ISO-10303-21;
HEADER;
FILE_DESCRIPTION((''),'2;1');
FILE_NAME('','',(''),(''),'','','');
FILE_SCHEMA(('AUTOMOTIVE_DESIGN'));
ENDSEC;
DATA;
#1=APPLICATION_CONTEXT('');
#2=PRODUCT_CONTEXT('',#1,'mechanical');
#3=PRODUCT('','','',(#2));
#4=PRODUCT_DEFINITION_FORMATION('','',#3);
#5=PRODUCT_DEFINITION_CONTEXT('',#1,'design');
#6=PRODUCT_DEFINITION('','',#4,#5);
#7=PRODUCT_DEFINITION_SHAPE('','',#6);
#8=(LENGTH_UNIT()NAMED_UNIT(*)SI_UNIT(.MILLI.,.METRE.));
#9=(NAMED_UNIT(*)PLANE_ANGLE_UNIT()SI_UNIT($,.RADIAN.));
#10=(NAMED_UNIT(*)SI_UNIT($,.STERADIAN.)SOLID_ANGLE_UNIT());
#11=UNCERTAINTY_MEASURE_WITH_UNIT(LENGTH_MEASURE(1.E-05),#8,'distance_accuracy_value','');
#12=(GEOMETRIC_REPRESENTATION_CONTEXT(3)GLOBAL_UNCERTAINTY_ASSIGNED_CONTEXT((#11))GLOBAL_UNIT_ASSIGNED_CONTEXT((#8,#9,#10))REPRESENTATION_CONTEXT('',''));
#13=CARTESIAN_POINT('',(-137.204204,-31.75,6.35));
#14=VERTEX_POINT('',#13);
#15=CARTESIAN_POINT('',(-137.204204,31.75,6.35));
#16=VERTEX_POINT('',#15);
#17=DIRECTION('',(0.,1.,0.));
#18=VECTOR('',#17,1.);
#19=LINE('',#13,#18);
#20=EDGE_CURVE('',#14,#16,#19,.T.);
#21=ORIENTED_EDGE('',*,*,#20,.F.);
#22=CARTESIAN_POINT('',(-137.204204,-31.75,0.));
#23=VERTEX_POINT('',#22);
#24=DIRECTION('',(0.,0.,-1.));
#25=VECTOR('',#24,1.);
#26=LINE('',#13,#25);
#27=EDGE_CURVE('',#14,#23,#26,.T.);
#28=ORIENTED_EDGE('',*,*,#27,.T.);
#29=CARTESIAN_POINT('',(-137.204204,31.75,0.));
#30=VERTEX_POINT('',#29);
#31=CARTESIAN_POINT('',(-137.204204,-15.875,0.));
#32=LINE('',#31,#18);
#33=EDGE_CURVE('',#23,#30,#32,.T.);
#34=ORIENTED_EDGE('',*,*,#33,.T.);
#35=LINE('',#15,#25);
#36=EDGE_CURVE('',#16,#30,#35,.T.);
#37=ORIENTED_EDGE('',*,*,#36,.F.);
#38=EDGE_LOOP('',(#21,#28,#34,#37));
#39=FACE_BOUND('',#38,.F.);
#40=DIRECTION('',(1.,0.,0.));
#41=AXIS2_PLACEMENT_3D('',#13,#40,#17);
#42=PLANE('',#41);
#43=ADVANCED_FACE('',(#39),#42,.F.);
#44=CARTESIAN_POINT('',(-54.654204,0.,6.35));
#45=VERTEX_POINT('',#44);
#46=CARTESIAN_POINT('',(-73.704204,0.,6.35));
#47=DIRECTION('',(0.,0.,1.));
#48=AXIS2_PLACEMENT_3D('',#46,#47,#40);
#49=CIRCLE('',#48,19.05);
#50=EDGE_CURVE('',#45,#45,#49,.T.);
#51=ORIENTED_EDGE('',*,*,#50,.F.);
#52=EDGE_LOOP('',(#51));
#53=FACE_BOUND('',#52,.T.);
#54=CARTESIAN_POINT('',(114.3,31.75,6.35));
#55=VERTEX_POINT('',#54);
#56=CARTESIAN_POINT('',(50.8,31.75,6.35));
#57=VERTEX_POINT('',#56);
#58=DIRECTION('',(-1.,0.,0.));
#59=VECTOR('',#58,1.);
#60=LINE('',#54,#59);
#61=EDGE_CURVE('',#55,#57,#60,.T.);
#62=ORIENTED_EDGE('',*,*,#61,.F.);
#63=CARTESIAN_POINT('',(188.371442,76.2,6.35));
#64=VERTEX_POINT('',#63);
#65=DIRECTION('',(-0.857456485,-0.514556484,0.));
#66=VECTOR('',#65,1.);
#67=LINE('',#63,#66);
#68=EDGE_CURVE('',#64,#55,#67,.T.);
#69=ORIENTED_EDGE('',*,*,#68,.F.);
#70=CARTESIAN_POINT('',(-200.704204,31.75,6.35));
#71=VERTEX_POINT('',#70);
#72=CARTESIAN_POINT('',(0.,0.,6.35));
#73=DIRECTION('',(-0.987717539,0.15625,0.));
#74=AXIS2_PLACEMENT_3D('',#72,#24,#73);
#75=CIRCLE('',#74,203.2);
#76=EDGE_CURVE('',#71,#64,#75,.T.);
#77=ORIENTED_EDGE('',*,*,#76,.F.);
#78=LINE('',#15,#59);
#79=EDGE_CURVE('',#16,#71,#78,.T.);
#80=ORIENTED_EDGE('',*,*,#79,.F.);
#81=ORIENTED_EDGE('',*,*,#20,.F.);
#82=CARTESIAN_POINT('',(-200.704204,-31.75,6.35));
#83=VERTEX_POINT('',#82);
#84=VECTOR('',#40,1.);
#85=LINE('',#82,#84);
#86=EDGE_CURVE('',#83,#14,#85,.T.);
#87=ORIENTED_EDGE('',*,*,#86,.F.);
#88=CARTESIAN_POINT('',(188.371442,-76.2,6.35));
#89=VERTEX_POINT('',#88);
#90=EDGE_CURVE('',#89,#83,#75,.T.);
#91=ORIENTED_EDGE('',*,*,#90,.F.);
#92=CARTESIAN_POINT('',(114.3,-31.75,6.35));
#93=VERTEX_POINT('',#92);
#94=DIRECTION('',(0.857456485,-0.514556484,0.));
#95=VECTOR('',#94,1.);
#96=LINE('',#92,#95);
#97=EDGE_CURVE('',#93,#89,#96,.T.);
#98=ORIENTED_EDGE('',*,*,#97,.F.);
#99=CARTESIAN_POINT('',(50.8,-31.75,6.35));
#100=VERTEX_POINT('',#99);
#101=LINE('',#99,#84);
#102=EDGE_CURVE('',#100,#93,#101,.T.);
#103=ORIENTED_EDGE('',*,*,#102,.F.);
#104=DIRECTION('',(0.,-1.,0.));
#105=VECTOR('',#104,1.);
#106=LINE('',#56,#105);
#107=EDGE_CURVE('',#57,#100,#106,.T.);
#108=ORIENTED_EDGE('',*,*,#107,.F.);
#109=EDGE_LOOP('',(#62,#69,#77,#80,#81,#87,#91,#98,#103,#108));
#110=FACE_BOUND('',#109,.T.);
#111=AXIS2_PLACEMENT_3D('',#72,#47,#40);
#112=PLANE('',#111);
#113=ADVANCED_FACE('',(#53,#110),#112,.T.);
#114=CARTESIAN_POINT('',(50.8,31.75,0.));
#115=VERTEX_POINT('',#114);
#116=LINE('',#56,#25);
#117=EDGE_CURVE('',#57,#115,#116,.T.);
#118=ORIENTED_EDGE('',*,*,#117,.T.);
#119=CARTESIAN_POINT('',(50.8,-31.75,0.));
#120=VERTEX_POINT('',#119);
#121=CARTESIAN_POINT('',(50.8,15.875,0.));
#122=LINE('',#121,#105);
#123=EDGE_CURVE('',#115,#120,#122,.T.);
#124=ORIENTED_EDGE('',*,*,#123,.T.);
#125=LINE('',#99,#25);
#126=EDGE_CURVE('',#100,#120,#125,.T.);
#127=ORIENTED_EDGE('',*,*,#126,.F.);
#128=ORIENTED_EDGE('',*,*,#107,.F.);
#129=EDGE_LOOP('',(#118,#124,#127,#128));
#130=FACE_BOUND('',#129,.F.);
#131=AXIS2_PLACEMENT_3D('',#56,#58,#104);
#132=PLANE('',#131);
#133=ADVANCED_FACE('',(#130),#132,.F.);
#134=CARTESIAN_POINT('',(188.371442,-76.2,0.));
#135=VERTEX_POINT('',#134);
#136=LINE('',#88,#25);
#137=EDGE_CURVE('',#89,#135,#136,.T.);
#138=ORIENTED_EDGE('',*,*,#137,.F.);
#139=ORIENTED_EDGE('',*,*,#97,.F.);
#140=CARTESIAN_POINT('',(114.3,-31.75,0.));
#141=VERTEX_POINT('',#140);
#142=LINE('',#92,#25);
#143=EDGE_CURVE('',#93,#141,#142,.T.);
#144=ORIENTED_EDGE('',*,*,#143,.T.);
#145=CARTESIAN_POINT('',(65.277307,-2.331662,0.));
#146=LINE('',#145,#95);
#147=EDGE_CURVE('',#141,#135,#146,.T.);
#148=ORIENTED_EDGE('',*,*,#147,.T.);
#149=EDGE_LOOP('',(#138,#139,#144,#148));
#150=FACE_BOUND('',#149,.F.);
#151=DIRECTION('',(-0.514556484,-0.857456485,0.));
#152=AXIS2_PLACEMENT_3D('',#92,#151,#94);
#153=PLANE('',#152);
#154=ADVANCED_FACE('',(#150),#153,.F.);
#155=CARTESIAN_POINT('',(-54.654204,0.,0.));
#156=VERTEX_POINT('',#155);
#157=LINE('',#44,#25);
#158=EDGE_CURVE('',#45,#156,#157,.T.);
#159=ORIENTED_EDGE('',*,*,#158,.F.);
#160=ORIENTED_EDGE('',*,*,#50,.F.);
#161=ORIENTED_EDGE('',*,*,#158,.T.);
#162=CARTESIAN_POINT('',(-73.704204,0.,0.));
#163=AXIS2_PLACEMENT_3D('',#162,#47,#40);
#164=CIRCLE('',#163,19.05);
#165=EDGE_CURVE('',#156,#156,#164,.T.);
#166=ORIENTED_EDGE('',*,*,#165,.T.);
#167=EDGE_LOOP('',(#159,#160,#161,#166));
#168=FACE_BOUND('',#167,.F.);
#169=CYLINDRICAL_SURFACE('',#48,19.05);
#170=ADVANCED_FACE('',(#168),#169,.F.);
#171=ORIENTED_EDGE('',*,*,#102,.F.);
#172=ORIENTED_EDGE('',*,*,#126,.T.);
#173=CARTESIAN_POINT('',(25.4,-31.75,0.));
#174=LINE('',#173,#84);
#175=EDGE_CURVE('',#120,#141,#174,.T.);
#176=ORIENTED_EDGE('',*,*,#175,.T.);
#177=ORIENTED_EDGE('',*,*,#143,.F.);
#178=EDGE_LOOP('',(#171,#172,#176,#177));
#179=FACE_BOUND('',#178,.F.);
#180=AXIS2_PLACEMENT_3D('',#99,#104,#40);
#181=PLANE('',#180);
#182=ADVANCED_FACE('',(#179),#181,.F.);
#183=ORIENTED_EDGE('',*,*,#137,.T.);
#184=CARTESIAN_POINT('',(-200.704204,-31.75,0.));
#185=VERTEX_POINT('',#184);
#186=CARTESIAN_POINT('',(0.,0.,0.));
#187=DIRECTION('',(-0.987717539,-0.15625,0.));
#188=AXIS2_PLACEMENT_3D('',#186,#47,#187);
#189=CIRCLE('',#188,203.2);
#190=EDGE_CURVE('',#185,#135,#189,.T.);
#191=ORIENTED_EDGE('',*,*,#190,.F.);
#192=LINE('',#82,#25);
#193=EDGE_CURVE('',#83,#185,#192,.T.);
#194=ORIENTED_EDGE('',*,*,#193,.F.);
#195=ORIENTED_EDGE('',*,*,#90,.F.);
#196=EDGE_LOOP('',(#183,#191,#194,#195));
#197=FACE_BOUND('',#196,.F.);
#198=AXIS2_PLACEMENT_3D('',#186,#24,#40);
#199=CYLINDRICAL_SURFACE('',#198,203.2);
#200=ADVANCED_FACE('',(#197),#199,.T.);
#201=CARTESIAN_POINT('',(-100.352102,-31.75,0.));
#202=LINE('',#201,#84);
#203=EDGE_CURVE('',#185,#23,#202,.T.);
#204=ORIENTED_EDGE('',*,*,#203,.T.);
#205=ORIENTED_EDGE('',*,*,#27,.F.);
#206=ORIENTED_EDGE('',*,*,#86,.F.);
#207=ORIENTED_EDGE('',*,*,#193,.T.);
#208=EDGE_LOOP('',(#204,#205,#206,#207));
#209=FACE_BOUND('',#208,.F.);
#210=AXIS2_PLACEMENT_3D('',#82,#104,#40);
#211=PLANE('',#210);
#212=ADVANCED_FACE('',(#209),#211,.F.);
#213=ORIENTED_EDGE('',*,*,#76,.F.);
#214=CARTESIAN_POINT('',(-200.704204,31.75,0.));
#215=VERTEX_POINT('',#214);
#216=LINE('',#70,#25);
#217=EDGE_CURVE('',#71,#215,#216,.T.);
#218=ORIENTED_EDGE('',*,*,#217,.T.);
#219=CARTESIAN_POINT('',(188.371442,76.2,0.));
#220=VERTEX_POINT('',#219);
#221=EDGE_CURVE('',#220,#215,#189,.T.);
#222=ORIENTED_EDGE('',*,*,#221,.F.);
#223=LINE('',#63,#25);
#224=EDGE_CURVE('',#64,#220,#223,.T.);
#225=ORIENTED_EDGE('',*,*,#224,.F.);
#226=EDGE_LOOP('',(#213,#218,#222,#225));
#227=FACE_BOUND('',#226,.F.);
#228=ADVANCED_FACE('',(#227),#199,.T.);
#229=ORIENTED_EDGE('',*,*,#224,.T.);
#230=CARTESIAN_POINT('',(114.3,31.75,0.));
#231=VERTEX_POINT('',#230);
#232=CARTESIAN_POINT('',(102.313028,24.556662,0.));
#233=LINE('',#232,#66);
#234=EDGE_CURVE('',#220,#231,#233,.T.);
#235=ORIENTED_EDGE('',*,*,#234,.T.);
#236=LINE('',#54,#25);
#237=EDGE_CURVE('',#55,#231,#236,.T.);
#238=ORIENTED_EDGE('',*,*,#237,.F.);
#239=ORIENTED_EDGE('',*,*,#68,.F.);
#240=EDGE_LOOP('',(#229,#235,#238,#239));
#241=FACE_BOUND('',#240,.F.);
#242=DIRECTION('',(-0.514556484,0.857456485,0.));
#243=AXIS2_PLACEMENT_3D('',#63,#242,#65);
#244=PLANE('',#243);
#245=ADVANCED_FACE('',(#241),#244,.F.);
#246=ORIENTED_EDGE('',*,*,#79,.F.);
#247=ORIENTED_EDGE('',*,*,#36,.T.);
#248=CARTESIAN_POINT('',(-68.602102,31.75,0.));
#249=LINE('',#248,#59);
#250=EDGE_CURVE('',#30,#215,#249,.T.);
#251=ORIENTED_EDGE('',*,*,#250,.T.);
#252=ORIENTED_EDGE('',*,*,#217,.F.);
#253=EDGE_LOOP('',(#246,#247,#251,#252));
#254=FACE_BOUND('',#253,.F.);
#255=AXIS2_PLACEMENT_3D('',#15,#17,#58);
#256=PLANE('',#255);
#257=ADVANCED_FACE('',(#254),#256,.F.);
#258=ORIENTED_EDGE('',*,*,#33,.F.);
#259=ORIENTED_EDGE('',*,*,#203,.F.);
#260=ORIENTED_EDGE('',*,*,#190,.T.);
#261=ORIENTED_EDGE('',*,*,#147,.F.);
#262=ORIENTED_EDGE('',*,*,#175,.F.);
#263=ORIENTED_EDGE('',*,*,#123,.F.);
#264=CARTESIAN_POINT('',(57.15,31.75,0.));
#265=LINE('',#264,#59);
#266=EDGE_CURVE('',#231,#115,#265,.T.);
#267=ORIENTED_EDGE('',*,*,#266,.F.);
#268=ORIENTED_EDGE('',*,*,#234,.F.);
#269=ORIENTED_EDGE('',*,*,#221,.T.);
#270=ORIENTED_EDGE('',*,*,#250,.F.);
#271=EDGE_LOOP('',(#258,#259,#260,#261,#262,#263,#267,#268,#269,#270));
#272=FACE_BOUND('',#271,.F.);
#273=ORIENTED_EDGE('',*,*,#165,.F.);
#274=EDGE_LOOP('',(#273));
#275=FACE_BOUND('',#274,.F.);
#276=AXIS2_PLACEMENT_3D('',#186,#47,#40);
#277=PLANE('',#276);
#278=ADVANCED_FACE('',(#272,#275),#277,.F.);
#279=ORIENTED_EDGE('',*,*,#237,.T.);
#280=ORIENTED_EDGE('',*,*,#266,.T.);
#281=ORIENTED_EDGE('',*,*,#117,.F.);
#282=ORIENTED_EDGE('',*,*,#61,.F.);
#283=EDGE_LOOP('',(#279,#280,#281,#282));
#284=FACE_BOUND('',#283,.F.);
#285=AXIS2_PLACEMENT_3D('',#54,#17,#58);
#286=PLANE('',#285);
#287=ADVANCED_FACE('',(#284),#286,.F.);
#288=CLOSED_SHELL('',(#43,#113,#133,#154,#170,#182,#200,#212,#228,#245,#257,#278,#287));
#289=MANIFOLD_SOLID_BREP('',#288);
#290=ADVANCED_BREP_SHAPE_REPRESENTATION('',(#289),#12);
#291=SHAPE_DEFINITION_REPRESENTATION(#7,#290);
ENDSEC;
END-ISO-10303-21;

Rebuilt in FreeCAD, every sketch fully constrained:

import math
import FreeCAD as App
import Part
import Sketcher

V = App.Vector
Q = App.Units.Quantity

doc = App.newDocument("Part")
body = doc.addObject("PartDesign::Body", "Body")

# Sketch on XY plane
sketch1 = doc.addObject("Sketcher::SketchObject", "Sketch")
body.addObject(sketch1)
sketch1.AttachmentSupport = (doc.XY_Plane, [""])
sketch1.MapMode = "FlatFace"
sketch1.addGeometry(Part.Circle(V(0, 0, 0), V(0, 0, 1), 203), False)
sketch1.addConstraint([
    Sketcher.Constraint("Coincident", 0, 3, -1, 1),
    Sketcher.Constraint("Diameter", 0, Q("16 in")),
])
pad1 = doc.addObject("PartDesign::Pad", "Pad")
body.addObject(pad1)
pad1.Profile = sketch1
pad1.Length = Q("0.25 in")

# Sketch on XY plane
sketch2 = doc.addObject("Sketcher::SketchObject", "Sketch001")
body.addObject(sketch2)
sketch2.AttachmentSupport = (doc.XY_Plane, [""])
sketch2.MapMode = "FlatFace"
sketch2.AttachmentOffset = App.Placement(V(0, 0, 0.25 * 25.4), App.Rotation())
sketch2.addGeometry([
    Part.ArcOfCircle(Part.Circle(V(0, 0, 0), V(0, 0, 1), 203), math.radians(171.01), math.radians(188.99)),
    Part.LineSegment(V(-201, -32, 0), V(-137, -32, 0)),
    Part.LineSegment(V(-137, -32, 0), V(-137, 32, 0)),
    Part.LineSegment(V(-137, 32, 0), V(-201, 32, 0)),
], False)
sketch2.addConstraint([
    Sketcher.Constraint("Coincident", 0, 2, 1, 1),
    Sketcher.Constraint("Coincident", 1, 2, 2, 1),
    Sketcher.Constraint("Coincident", 2, 2, 3, 1),
    Sketcher.Constraint("Coincident", 3, 2, 0, 1),
    Sketcher.Constraint("Horizontal", 1),
    Sketcher.Constraint("Vertical", 2),
    Sketcher.Constraint("Horizontal", 3),
    Sketcher.Constraint("Coincident", 0, 3, -1, 1),
    Sketcher.Constraint("Vertical", 0, 2, 3, 2),
    Sketcher.Constraint("Equal", 3, 2),
    Sketcher.Constraint("Radius", 0, Q("8 in")),
    Sketcher.Constraint("DistanceX", 1, 1, 1, 2, Q("2.5 in")),
])
pocket1 = doc.addObject("PartDesign::Pocket", "Pocket")
body.addObject(pocket1)
pocket1.Profile = sketch2
pocket1.Type = "ThroughAll"

# Sketch on XY plane
sketch3 = doc.addObject("Sketcher::SketchObject", "Sketch002")
body.addObject(sketch3)
sketch3.AttachmentSupport = (doc.XY_Plane, [""])
sketch3.MapMode = "FlatFace"
sketch3.AttachmentOffset = App.Placement(V(0, 0, 0.25 * 25.4), App.Rotation())
sketch3.addGeometry([
    Part.LineSegment(V(51, 32, 0), V(51, -32, 0)),  # 0
    Part.LineSegment(V(51, -32, 0), V(114, -32, 0)),  # 1
    Part.LineSegment(V(114, -32, 0), V(188, -76, 0)),  # 2
    Part.ArcOfCircle(Part.Circle(V(0, 0, 0), V(0, 0, 1), 203), math.radians(-22), math.radians(22)),  # 3
    Part.LineSegment(V(188, 76, 0), V(114, 32, 0)),  # 4
    Part.LineSegment(V(114, 32, 0), V(51, 32, 0)),  # 5
], False)
sketch3.addConstraint([
    Sketcher.Constraint("Coincident", 0, 2, 1, 1),
    Sketcher.Constraint("Coincident", 1, 2, 2, 1),
    Sketcher.Constraint("Coincident", 2, 2, 3, 1),
    Sketcher.Constraint("Coincident", 3, 2, 4, 1),
    Sketcher.Constraint("Coincident", 4, 2, 5, 1),
    Sketcher.Constraint("Coincident", 5, 2, 0, 1),
    Sketcher.Constraint("Vertical", 0),
    Sketcher.Constraint("Horizontal", 1),
    Sketcher.Constraint("Horizontal", 5),
    Sketcher.Constraint("Coincident", 3, 3, -1, 1),
    Sketcher.Constraint("Symmetric", 1, 2, 4, 2, -1),
    Sketcher.Constraint("Vertical", 2, 2, 3, 2),
    Sketcher.Constraint("Equal", 5, 0),
    Sketcher.Constraint("DistanceX", 1, 1, 1, 2, Q("2.5 in")),
    Sketcher.Constraint("DistanceX", -1, 1, 0, 2, Q("2 in")),
    Sketcher.Constraint("DistanceY", 2, 2, -1, 1, Q("3 in")),
    Sketcher.Constraint("Radius", 3, Q("203.200005 mm")),
])
pocket2 = doc.addObject("PartDesign::Pocket", "Pocket001")
body.addObject(pocket2)
pocket2.Profile = sketch3
pocket2.Type = "ThroughAll"

# Sketch on XY plane
sketch4 = doc.addObject("Sketcher::SketchObject", "Sketch003")
body.addObject(sketch4)
sketch4.AttachmentSupport = (doc.XY_Plane, [""])
sketch4.MapMode = "FlatFace"
sketch4.AttachmentOffset = App.Placement(V(0, 0, 0.25 * 25.4), App.Rotation())
sketch4.addGeometry(Part.Circle(V(-74, 0, 0), V(0, 0, 1), 19), False)
sketch4.addConstraint([
    Sketcher.Constraint("PointOnObject", 0, 3, -1),
    Sketcher.Constraint("Diameter", 0, Q("1.5 in")),
    Sketcher.Constraint("DistanceX", 0, 3, -1, 1, Q("73.704204 mm")),
])
pocket3 = doc.addObject("PartDesign::Pocket", "Pocket002")
body.addObject(pocket3)
pocket3.Profile = sketch4
pocket3.Type = "ThroughAll"

doc.recompute()
